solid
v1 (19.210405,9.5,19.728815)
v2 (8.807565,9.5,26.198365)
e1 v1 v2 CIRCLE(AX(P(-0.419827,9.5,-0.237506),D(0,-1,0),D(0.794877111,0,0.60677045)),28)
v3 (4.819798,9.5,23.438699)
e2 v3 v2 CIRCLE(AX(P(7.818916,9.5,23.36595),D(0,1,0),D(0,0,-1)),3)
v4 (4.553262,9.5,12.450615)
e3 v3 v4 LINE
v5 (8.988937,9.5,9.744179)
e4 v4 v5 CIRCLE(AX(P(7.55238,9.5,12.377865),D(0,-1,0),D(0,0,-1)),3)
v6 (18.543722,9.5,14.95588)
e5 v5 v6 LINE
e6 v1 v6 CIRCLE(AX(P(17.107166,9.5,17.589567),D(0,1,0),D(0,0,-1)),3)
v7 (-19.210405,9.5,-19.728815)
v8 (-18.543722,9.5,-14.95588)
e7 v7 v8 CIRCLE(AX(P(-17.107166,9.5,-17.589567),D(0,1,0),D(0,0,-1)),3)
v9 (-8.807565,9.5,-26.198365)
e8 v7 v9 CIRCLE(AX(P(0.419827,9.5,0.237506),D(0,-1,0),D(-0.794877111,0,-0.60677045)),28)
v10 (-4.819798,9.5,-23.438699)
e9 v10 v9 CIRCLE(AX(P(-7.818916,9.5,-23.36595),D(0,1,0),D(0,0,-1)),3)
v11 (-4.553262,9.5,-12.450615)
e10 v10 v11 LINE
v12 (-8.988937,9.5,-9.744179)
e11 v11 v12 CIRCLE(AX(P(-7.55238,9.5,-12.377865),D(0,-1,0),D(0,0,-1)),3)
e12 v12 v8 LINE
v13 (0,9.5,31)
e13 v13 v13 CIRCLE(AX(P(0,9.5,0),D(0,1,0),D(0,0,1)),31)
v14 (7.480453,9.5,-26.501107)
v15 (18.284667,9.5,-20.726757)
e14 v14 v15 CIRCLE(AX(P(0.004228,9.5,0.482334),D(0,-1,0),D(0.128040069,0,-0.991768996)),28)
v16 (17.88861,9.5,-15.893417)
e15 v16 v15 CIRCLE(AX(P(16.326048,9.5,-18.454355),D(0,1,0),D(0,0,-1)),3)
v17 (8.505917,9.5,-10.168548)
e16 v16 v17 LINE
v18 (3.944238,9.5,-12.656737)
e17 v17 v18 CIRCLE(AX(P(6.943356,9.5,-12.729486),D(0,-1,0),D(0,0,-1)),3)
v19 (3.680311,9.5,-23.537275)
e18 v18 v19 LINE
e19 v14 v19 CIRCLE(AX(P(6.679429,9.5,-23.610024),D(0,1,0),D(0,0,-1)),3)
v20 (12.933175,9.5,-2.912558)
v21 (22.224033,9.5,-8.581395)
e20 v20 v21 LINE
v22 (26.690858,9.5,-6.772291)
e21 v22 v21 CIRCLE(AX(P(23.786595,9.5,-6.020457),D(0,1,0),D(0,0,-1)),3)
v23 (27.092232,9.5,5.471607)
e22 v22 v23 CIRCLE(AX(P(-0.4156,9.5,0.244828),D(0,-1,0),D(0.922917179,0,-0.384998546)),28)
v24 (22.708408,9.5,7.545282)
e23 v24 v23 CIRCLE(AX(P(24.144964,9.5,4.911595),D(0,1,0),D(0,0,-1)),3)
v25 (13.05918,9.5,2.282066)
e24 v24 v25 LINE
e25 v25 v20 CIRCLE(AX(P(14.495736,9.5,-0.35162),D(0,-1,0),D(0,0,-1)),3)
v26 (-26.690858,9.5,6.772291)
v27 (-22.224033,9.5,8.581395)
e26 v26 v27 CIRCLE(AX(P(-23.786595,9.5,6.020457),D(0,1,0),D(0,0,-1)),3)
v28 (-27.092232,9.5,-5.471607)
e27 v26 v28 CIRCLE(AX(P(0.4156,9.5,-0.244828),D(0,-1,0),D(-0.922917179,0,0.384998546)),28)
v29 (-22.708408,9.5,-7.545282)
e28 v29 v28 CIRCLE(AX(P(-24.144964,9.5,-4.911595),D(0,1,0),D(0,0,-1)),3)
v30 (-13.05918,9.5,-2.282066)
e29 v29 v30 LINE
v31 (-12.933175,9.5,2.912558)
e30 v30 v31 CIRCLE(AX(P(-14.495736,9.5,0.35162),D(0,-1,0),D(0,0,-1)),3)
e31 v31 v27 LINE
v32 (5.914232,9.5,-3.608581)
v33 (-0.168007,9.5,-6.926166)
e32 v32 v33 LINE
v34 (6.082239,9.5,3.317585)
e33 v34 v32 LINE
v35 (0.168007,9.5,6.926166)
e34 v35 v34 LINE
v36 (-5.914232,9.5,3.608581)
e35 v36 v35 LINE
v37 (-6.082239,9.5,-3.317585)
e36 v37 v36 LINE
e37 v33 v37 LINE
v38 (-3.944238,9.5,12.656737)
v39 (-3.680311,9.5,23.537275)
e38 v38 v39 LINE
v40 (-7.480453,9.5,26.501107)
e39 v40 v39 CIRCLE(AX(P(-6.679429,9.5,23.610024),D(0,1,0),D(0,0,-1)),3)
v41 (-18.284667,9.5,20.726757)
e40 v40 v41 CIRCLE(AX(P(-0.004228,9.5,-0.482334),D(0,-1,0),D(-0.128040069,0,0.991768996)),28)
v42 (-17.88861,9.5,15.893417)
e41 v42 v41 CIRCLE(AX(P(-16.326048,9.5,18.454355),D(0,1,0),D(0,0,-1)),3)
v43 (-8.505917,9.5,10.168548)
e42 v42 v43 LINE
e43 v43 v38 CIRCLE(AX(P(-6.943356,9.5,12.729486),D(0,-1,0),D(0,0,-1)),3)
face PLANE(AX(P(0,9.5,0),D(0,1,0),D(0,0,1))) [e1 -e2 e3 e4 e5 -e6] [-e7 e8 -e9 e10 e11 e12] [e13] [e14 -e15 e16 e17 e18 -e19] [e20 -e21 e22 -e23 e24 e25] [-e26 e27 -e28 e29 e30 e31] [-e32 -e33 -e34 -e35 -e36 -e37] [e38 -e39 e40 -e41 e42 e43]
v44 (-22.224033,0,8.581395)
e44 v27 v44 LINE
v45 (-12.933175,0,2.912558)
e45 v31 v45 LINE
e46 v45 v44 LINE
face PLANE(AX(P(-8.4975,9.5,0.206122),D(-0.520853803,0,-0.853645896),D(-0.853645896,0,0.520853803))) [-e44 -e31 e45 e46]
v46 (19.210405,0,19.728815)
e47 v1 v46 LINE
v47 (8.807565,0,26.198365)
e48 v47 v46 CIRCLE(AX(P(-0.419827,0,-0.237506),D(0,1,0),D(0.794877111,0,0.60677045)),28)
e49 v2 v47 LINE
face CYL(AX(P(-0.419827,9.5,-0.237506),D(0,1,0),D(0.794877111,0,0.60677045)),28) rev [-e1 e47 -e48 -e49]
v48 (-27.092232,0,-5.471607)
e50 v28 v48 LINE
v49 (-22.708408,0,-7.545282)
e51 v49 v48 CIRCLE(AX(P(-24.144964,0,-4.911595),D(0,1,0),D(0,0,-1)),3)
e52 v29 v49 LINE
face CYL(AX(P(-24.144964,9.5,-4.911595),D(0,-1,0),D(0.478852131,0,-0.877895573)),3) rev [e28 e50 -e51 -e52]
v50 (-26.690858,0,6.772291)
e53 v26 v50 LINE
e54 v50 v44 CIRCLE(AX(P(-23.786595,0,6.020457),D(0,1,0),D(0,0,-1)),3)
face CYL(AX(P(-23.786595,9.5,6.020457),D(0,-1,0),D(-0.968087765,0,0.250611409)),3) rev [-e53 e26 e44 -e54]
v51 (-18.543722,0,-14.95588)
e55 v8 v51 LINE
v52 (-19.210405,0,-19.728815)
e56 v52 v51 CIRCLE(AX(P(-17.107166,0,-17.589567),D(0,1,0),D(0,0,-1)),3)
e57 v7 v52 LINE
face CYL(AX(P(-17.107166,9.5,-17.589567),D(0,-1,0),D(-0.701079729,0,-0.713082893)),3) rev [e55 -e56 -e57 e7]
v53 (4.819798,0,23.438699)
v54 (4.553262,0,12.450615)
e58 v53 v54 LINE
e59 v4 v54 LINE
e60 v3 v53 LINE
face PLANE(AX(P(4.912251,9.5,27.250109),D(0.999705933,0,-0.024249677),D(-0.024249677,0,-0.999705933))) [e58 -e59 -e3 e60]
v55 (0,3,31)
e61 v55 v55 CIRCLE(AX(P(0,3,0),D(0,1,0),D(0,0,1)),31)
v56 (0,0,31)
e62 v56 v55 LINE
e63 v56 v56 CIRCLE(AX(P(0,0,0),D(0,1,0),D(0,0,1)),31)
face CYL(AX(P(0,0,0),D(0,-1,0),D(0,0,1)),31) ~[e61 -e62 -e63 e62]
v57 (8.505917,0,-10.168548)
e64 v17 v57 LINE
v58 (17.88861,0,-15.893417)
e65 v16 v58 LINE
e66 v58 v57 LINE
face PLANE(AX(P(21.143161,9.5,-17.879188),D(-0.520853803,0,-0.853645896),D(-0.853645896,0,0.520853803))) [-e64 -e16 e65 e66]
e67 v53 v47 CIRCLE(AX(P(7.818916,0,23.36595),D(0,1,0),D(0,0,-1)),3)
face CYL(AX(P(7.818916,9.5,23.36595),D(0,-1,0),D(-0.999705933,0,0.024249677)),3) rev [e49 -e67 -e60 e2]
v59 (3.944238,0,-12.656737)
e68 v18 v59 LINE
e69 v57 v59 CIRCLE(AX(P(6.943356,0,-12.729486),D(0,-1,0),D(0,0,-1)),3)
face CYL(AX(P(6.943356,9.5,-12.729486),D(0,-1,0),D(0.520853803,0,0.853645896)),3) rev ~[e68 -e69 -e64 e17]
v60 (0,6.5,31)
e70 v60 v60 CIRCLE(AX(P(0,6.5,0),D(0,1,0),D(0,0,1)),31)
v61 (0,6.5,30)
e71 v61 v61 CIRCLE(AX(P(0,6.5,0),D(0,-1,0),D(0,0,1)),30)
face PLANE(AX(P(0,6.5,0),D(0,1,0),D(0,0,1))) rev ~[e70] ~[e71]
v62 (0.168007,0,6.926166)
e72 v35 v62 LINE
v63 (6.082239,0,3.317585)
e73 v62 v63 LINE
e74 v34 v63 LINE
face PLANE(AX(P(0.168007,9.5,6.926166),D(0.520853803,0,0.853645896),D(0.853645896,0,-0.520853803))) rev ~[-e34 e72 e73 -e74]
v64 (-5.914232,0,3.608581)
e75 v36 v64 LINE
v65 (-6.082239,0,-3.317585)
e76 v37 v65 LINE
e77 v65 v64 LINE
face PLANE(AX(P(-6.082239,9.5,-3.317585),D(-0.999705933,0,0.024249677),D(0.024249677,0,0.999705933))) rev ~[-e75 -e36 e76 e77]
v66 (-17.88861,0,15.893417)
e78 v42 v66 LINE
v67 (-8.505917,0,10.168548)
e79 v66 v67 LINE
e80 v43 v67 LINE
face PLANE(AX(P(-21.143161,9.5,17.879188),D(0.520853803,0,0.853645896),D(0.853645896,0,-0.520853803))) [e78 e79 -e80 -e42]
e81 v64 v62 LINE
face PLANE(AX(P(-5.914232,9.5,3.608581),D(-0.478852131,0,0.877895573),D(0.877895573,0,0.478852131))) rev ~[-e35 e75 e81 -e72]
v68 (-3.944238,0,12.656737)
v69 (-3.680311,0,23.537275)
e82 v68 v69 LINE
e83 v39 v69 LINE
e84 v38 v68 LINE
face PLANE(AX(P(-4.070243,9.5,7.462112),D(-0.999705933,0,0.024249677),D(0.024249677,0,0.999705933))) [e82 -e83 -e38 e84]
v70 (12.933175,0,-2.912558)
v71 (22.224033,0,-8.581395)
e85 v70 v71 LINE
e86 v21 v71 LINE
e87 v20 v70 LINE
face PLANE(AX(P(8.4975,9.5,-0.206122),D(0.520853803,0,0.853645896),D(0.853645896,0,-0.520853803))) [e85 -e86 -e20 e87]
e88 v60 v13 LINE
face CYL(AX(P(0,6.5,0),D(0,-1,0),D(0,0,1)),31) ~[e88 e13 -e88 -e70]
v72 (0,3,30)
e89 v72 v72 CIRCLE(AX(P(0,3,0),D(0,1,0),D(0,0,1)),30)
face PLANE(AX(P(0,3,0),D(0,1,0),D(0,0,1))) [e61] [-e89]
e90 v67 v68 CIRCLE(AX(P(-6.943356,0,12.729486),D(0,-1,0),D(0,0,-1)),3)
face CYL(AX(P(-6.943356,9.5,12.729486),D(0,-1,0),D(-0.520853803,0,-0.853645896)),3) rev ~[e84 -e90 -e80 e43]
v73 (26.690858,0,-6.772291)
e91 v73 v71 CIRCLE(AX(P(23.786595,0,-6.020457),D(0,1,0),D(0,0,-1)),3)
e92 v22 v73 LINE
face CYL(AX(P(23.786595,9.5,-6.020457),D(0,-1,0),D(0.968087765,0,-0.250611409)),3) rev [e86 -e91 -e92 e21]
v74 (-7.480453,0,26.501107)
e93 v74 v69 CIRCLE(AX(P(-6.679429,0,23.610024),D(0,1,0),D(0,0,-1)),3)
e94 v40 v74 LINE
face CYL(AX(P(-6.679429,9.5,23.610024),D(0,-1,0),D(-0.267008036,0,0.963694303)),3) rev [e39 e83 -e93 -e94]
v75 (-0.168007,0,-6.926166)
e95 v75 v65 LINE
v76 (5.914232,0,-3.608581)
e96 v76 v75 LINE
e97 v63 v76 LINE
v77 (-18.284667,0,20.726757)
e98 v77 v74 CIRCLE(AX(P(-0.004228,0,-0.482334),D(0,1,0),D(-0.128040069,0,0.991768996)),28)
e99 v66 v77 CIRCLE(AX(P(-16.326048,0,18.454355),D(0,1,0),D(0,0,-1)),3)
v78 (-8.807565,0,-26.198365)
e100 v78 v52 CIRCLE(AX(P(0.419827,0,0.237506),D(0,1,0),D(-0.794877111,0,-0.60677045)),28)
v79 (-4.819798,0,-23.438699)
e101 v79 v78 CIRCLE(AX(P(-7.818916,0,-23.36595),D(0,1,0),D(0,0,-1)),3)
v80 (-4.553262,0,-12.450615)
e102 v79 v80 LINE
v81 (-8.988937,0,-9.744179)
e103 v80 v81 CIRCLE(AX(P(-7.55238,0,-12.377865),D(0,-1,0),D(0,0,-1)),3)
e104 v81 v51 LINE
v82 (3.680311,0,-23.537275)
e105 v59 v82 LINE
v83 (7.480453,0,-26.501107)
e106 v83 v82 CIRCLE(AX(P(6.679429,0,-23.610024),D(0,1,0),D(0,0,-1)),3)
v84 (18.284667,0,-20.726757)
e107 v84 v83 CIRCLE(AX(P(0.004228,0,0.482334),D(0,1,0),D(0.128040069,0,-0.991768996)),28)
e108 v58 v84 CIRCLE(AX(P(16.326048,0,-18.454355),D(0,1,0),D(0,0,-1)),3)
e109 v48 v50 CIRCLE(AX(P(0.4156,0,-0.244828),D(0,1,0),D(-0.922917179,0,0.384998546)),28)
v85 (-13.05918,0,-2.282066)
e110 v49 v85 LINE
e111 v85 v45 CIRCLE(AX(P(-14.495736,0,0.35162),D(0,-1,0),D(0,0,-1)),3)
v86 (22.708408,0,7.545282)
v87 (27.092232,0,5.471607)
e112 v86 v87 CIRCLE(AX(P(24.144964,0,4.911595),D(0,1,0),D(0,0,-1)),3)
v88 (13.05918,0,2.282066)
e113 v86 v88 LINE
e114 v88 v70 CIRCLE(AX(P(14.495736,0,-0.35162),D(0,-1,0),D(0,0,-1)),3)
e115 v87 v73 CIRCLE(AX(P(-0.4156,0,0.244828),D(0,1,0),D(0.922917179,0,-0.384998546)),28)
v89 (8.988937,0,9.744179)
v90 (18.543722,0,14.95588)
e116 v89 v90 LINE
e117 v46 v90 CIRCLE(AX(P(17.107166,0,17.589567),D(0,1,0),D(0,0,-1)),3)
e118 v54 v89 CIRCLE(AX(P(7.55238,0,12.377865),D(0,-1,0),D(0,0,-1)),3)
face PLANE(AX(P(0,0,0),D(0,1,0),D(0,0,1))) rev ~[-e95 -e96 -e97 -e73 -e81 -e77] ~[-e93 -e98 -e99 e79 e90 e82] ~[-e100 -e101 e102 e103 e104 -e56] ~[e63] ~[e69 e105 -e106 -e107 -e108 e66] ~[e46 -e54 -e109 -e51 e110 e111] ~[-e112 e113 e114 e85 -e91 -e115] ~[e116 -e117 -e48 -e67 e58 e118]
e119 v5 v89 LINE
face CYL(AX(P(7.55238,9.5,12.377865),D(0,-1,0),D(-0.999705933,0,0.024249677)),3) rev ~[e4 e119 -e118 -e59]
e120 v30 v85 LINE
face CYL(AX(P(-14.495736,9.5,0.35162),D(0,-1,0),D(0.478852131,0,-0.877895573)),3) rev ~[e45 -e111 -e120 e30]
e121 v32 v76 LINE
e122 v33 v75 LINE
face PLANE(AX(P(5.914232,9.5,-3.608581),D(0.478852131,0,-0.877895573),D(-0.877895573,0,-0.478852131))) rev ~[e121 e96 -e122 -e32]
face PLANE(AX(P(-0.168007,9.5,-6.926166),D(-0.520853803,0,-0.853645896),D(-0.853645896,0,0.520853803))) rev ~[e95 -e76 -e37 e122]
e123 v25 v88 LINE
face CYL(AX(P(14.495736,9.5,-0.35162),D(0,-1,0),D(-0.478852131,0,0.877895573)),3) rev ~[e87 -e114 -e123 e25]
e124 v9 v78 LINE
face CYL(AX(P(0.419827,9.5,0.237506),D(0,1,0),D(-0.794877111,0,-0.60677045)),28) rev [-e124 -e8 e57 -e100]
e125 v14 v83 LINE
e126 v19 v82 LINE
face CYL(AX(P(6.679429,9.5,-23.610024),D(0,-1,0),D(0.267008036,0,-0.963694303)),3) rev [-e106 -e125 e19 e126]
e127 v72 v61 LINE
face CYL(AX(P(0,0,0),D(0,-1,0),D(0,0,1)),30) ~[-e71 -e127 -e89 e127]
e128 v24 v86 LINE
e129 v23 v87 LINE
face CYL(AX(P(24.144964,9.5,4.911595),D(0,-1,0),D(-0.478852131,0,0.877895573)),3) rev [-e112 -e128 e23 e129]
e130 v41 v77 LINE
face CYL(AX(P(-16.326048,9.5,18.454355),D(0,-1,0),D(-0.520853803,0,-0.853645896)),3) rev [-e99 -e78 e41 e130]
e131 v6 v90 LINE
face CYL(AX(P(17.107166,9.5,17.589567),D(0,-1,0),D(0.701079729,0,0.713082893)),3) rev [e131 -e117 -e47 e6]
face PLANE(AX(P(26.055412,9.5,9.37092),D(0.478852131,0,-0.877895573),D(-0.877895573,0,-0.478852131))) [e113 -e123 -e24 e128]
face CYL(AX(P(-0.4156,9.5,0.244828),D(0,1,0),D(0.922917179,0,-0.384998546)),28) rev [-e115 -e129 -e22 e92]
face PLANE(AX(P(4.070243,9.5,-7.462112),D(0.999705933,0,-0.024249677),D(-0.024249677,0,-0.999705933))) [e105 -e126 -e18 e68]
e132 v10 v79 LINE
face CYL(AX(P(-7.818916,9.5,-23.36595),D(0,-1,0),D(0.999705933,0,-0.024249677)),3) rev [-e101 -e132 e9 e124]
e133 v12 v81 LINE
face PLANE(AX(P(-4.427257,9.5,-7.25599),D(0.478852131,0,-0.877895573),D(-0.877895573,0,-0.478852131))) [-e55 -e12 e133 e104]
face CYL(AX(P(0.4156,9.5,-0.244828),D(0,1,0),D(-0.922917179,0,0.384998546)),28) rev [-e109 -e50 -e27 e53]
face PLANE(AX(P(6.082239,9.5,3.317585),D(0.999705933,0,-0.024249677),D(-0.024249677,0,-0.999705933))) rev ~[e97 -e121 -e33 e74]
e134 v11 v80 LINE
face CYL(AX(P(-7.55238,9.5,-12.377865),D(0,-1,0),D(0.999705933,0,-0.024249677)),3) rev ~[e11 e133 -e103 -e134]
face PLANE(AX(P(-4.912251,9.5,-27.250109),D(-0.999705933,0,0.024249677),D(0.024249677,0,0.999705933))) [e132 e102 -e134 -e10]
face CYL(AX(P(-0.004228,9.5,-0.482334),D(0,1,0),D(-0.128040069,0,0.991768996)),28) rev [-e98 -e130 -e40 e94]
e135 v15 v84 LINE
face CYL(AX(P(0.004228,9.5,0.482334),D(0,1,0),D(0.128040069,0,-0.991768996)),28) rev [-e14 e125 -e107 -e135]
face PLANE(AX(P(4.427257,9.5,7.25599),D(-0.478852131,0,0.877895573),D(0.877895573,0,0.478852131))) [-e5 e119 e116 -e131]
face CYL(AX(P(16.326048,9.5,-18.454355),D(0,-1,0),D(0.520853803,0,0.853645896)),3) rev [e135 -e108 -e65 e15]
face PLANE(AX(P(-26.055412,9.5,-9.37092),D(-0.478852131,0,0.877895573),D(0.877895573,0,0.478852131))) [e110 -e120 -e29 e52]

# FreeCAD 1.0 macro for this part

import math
import FreeCAD as App
import Part
import Sketcher
from FreeCAD import Vector


def edges_at(feature, points):
    """Names of the edges that pass closest to the given points."""
    edges = feature.Shape.Edges
    near = lambda p: min(range(len(edges)), key=lambda i: edges[i].distToShape(Part.Vertex(*p))[0])
    return sorted({f"Edge{near(p) + 1}" for p in points})


def add_polygon(sketch, points):
    """Adds a closed chain of lines whose ends are joined by coincident constraints."""
    first, n = sketch.GeometryCount, len(points)
    for a, b in zip(points, points[1:] + points[:1]):
        sketch.addGeometry(Part.LineSegment(App.Vector(*a, 0), App.Vector(*b, 0)), False)
    for i in range(n):
        sketch.addConstraint(Sketcher.Constraint("Coincident", first + i, 2, first + (i + 1) % n, 1))

doc = App.newDocument("Part")
params = doc.addObject("Spreadsheet::Sheet", "Params")
for row, (alias, value) in enumerate([
    ("sketch1_diameter", "60 mm"),
    ("pad1_length", "9.5 mm"),
    ("sketch2_diameter", "62 mm"),
    ("sketch2_diameter2", "60 mm"),
    ("pad2_length", "3 mm"),
    ("sketch3_diameter", "62 mm"),
    ("pad3_length", "3 mm"),
    ("sketch5_radius", "28 mm"),
    ("sketch5_length", "20 mm"),
    ("fillet_radius", "3 mm"),
    ("fillet2_radius", "3 mm"),
], start=1):
    params.set(f"A{row}", alias)
    params.set(f"B{row}", "=" + value)
    params.setAlias(f"B{row}", alias)

body = doc.addObject("PartDesign::Body", "Body")

# Sketch on XZ plane
sketch1 = doc.addObject("Sketcher::SketchObject", "Sketch")
body.addObject(sketch1)
sketch1.AttachmentSupport = (doc.XZ_Plane, [""])
sketch1.MapMode = "FlatFace"
sketch1.addGeometry(Part.Circle(Vector(0, 0, 0), Vector(0, 0, 1), 30), False)
sketch1.addConstraint([
    Sketcher.Constraint("Coincident", 0, 3, -1, 1),
    Sketcher.Constraint("Diameter", 0, 60.0),
])
sketch1.setExpression("Constraints[1]", "Params.sketch1_diameter")
pad1 = doc.addObject("PartDesign::Pad", "Pad")
body.addObject(pad1)
pad1.Profile = sketch1
pad1.setExpression("Length", "Params.pad1_length")
pad1.Reversed = True

# Sketch on XZ plane
sketch2 = doc.addObject("Sketcher::SketchObject", "Sketch001")
body.addObject(sketch2)
sketch2.AttachmentSupport = (doc.XZ_Plane, [""])
sketch2.MapMode = "FlatFace"
sketch2.addGeometry([
    Part.Circle(Vector(0, 0, 0), Vector(0, 0, 1), 31),
    Part.Circle(Vector(0, 0, 0), Vector(0, 0, 1), 30),
], False)
sketch2.addConstraint([
    Sketcher.Constraint("Coincident", 0, 3, -1, 1),
    Sketcher.Constraint("Coincident", 1, 3, -1, 1),
    Sketcher.Constraint("Diameter", 0, 62.0),
    Sketcher.Constraint("Diameter", 1, 60.0),
])
sketch2.setExpression("Constraints[2]", "Params.sketch2_diameter")
sketch2.setExpression("Constraints[3]", "Params.sketch2_diameter2")
pad2 = doc.addObject("PartDesign::Pad", "Pad001")
body.addObject(pad2)
pad2.Profile = sketch2
pad2.setExpression("Length", "Params.pad2_length")
pad2.Reversed = True

# Sketch on XZ plane
sketch3 = doc.addObject("Sketcher::SketchObject", "Sketch002")
body.addObject(sketch3)
sketch3.AttachmentSupport = (doc.XZ_Plane, [""])
sketch3.MapMode = "FlatFace"
sketch3.AttachmentOffset = App.Placement(Vector(0, 0, -6.5), App.Rotation())
sketch3.addGeometry(Part.Circle(Vector(0, 0, 0), Vector(0, 0, 1), 31), False)
sketch3.addConstraint([
    Sketcher.Constraint("Coincident", 0, 3, -1, 1),
    Sketcher.Constraint("Diameter", 0, 62.0),
])
sketch3.setExpression("Constraints[1]", "Params.sketch3_diameter")
pad3 = doc.addObject("PartDesign::Pad", "Pad002")
body.addObject(pad3)
pad3.Profile = sketch3
pad3.setExpression("Length", "Params.pad3_length")
pad3.Reversed = True

# Sketch on XZ plane
sketch4 = doc.addObject("Sketcher::SketchObject", "Sketch003")
body.addObject(sketch4)
sketch4.AttachmentSupport = (doc.XZ_Plane, [""])
sketch4.MapMode = "FlatFace"
sketch4.AttachmentOffset = App.Placement(Vector(0, 0, -9.5), App.Rotation())
add_polygon(sketch4, [(-6.082239, -3.317585), (-5.914232, 3.608581), (0.168007, 6.926166), (6.082239, 3.317585), (5.914232, -3.608581), (-0.168007, -6.926166)])  # lines 0-5
sketch4.addConstraint([
    Sketcher.Constraint("Symmetric", 0, 2, 3, 2, -1, 1),
    Sketcher.Constraint("Symmetric", 1, 2, 4, 2, -1, 1),
    Sketcher.Constraint("Symmetric", 2, 2, 5, 2, -1, 1),
    Sketcher.Constraint("Equal", 0, 1),
    Sketcher.Constraint("Equal", 1, 2),
    Sketcher.Constraint("DistanceY", -1, 1, 0, 2, 3.608581),
    Sketcher.Constraint("DistanceX", -1, 1, 2, 2, 6.082239),
    Sketcher.Constraint("DistanceX", 0, 2, 1, 2, 6.082239),
    Sketcher.Constraint("DistanceY", 2, 2, 1, 2, 3.608581),
])
pocket1 = doc.addObject("PartDesign::Pocket", "Pocket")
body.addObject(pocket1)
pocket1.Profile = sketch4
pocket1.Type = "ThroughAll"
pocket1.Reversed = True

# Sketch on XZ plane
sketch5 = doc.addObject("Sketcher::SketchObject", "Sketch004")
body.addObject(sketch5)
sketch5.AttachmentSupport = (doc.XZ_Plane, [""])
sketch5.MapMode = "FlatFace"
sketch5.AttachmentOffset = App.Placement(Vector(0, 0, -9.5), App.Rotation())
sketch5.addGeometry([
    Part.LineSegment(Vector(-21.836732, -16.752067, 0), Vector(-4.427257, -7.25599, 0)),
    Part.LineSegment(Vector(-4.427257, -7.25599, 0), Vector(-4.912251, -27.250109, 0)),
    Part.ArcOfCircle(Part.Circle(Vector(0.419827, 0.237506, 0), Vector(0, 0, 1), 28), math.radians(-142.64365), math.radians(-100.977959)),
], False)
sketch5.addConstraint([
    Sketcher.Constraint("Coincident", 0, 2, 1, 1),
    Sketcher.Constraint("Coincident", 1, 2, 2, 2),
    Sketcher.Constraint("Coincident", 2, 1, 0, 1),
    Sketcher.Constraint("Radius", 2, 28.0),
    Sketcher.Constraint("Distance", 1, 20.0),
    Sketcher.Constraint("DistanceY", 0, 2, -1, 1, 7.25599),
    Sketcher.Constraint("DistanceX", 1, 2, -1, 1, 4.912251),
    Sketcher.Constraint("DistanceY", 1, 2, -1, 1, 27.250109),
    Sketcher.Constraint("DistanceX", 2, 1, -1, 1, 21.836732),
    Sketcher.Constraint("DistanceX", 1, 2, 2, 3, 5.332078),
])
sketch5.setExpression("Constraints[3]", "Params.sketch5_radius")
sketch5.setExpression("Constraints[4]", "Params.sketch5_length")
pocket2 = doc.addObject("PartDesign::Pocket", "Pocket001")
body.addObject(pocket2)
pocket2.Profile = sketch5
pocket2.Type = "ThroughAll"
pocket2.Reversed = True
doc.recompute()

fillet = doc.addObject("PartDesign::Fillet", "Fillet")
body.addObject(fillet)
fillet.Base = (pocket2, edges_at(pocket2, [(-4.427, 4.75, -7.256), (-21.837, 4.75, -16.752), (-4.912, 4.75, -27.25)]))
fillet.setExpression("Radius", "Params.fillet_radius")
doc.recompute()

polarpattern = doc.addObject("PartDesign::PolarPattern", "PolarPattern")
body.addObject(polarpattern)
polarpattern.Originals = [pocket2]
polarpattern.Axis = (doc.Y_Axis, [""])
polarpattern.Angle = 360
polarpattern.Occurrences = 6
body.Tip = polarpattern
doc.recompute()

fillet2 = doc.addObject("PartDesign::Fillet", "Fillet001")
body.addObject(fillet2)
fillet2.Base = (polarpattern, edges_at(polarpattern, [
    (-8.498, 4.75, 0.206),
    (-25.426, 4.75, 10.535),
    (-26.055, 4.75, -9.371),
    (-4.07, 4.75, 7.462),
    (-3.589, 4.75, 27.287),
    (-21.143, 4.75, 17.879),
    (4.427, 4.75, 7.256),
    (21.837, 4.75, 16.752),
    (4.912, 4.75, 27.25),
    (8.498, 4.75, -0.206),
    (25.426, 4.75, -10.535),
    (26.055, 4.75, 9.371),
    (4.07, 4.75, -7.462),
    (3.589, 4.75, -27.287),
    (21.143, 4.75, -17.879),
]))
fillet2.setExpression("Radius", "Params.fillet2_radius")

doc.recompute()
